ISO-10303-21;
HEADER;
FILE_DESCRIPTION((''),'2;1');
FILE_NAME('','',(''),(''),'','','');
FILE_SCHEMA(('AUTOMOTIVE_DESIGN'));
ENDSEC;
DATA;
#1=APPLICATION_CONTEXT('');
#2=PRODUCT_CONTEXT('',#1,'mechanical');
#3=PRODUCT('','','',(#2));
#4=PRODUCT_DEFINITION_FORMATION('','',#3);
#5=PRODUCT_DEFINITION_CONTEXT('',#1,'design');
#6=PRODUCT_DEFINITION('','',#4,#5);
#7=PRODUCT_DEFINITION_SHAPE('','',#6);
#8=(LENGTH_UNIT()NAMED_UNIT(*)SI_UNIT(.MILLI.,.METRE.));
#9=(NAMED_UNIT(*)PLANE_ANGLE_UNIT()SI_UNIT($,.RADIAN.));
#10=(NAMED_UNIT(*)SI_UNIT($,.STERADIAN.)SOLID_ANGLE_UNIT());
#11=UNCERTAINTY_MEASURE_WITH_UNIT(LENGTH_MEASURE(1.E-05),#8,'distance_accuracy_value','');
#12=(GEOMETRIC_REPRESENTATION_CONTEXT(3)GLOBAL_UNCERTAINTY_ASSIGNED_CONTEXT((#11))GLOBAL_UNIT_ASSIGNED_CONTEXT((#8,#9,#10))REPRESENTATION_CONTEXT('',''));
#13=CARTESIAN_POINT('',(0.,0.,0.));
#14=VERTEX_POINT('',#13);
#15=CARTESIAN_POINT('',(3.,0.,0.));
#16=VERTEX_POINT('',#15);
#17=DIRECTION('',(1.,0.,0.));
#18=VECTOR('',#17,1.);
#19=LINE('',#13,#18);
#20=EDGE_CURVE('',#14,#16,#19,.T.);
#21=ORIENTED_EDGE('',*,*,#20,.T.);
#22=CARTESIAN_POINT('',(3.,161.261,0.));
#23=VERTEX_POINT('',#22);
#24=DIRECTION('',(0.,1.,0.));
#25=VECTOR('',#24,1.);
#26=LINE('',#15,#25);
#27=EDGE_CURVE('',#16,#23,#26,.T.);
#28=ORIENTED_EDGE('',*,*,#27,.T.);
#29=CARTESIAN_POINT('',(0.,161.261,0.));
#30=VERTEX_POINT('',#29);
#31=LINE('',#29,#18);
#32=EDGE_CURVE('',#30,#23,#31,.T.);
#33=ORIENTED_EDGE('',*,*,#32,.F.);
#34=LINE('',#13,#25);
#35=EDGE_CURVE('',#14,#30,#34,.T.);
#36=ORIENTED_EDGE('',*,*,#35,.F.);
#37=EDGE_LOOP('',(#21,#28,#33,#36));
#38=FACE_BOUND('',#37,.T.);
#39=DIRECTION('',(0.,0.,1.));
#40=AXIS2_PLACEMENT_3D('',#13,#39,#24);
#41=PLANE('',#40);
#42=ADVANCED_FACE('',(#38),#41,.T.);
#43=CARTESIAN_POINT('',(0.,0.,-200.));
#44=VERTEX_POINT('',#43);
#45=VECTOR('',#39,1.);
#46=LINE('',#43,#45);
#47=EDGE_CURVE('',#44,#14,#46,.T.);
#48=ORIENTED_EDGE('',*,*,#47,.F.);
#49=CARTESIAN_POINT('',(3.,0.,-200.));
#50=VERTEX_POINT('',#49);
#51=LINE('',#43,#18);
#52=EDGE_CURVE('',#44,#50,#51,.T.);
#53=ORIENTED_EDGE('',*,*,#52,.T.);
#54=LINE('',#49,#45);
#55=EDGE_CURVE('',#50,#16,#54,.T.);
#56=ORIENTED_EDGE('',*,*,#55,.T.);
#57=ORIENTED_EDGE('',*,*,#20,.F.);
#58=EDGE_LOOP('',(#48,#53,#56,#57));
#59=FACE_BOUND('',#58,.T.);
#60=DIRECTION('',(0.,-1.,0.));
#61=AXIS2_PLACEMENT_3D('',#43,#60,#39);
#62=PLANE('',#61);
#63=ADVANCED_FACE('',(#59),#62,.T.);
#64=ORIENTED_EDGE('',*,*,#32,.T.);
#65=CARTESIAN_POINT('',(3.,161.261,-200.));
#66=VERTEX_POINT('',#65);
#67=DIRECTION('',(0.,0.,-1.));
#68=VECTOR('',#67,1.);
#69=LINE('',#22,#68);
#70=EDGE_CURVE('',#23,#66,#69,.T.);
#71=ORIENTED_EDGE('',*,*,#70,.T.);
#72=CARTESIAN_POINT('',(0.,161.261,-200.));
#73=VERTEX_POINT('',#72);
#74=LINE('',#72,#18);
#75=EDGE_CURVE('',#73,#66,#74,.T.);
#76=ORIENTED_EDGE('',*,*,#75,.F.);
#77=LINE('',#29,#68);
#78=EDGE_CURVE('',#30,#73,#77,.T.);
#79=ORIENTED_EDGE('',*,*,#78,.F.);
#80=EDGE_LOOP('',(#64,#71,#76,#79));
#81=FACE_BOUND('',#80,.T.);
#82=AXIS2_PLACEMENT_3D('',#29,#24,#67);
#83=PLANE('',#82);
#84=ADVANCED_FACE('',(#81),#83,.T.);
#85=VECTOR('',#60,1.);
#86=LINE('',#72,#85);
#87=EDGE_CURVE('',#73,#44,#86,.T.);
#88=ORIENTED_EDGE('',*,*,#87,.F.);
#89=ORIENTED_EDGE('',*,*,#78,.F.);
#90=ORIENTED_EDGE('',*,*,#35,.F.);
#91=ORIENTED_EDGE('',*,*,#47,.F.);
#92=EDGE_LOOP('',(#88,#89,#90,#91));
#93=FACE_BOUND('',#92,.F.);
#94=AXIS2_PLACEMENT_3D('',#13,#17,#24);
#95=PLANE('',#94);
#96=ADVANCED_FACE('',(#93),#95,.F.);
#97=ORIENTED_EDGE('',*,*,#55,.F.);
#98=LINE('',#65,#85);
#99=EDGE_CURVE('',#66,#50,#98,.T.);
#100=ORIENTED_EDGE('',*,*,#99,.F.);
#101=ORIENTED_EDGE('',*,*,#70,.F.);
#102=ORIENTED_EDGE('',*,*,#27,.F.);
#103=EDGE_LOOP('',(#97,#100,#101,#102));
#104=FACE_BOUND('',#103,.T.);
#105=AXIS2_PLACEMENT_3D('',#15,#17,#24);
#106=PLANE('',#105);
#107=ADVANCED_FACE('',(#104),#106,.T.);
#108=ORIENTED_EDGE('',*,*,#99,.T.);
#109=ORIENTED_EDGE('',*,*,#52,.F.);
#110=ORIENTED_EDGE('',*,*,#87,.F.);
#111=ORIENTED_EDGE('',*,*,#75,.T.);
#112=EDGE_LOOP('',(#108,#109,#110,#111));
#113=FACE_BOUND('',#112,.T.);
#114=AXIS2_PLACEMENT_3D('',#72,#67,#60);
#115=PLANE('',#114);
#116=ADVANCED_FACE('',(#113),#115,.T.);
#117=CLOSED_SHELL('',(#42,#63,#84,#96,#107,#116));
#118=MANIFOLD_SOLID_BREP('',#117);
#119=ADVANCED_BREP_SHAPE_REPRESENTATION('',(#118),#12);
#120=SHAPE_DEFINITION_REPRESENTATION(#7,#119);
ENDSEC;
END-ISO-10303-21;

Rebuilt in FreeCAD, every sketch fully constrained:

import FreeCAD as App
import Part
import Sketcher


def add_polygon(sketch, points):
    """Adds a closed chain of lines whose ends are joined by coincident constraints."""
    first, n = sketch.GeometryCount, len(points)
    for a, b in zip(points, points[1:] + points[:1]):
        sketch.addGeometry(Part.LineSegment(App.Vector(*a, 0), App.Vector(*b, 0)), False)
    for i in range(n):
        sketch.addConstraint(Sketcher.Constraint("Coincident", first + i, 2, first + (i + 1) % n, 1))

doc = App.newDocument("Part")
body = doc.addObject("PartDesign::Body", "Body")

# Sketch on YZ plane
sketch1 = body.newObject("Sketcher::SketchObject", "Sketch")
sketch1.AttachmentSupport = (doc.getObject("YZ_Plane"), [""])
sketch1.MapMode = "FlatFace"
add_polygon(sketch1, [(161, 0), (0, 0), (0, -200), (161, -200)])  # lines 0-3
sketch1.addConstraint(Sketcher.Constraint("Horizontal", 0))
sketch1.addConstraint(Sketcher.Constraint("Vertical", 1))
sketch1.addConstraint(Sketcher.Constraint("Horizontal", 2))
sketch1.addConstraint(Sketcher.Constraint("Vertical", 3))
sketch1.addConstraint(Sketcher.Constraint("Coincident", 0, 2, -1, 1))
sketch1.addConstraint(Sketcher.Constraint("DistanceY", 1, 2, 1, 1, 200.0))
sketch1.addConstraint(Sketcher.Constraint("DistanceX", 0, 2, 0, 1, 161.261))
pad1 = body.newObject("PartDesign::Pad", "Pad")
pad1.Profile = sketch1
pad1.Length = 3

doc.recompute()
